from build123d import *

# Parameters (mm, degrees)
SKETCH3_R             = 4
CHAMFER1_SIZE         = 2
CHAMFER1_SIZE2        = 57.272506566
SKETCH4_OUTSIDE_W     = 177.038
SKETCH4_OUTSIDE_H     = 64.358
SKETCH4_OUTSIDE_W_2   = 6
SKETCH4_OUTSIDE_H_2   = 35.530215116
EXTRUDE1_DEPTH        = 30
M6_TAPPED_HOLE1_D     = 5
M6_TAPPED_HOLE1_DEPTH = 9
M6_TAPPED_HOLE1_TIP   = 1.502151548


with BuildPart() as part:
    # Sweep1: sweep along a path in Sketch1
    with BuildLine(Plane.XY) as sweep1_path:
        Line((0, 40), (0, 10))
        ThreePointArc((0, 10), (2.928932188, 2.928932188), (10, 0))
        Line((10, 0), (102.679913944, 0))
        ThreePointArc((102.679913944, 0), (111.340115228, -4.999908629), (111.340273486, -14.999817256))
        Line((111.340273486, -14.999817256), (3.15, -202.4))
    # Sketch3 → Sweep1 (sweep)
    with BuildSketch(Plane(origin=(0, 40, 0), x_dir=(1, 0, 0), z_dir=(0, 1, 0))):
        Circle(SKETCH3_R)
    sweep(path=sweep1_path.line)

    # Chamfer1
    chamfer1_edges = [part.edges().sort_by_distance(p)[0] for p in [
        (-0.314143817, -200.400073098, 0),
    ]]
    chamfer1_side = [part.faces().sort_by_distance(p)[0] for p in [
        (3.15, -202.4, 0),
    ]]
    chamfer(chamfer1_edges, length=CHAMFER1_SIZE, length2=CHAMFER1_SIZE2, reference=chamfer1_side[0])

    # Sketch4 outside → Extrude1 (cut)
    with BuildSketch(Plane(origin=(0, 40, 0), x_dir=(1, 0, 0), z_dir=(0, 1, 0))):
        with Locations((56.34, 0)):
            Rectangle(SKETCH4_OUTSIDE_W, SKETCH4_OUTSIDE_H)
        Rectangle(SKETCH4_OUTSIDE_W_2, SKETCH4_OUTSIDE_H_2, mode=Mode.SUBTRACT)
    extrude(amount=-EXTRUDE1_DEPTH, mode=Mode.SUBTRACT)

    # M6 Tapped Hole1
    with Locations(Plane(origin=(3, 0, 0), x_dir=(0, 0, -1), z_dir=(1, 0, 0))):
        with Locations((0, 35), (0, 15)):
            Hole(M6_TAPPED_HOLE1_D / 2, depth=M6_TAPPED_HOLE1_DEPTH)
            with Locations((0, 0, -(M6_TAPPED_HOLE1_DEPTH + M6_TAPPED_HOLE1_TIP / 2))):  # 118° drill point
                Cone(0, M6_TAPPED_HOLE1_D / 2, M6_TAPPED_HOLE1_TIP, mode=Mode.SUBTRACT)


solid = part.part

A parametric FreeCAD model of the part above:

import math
import FreeCAD as App
import Part
import Sketcher
from FreeCAD import Vector
Q = App.Units.Quantity


def edges_at(feature, points):
    """Names of the edges that pass closest to the given points."""
    edges = feature.Shape.Edges
    near = lambda p: min(range(len(edges)), key=lambda i: edges[i].distToShape(Part.Vertex(*p))[0])
    return sorted({f"Edge{near(p) + 1}" for p in points})


def add_polygon(sketch, points):
    """Adds a closed chain of lines whose ends are joined by coincident constraints."""
    first, n = sketch.GeometryCount, len(points)
    for a, b in zip(points, points[1:] + points[:1]):
        sketch.addGeometry(Part.LineSegment(App.Vector(*a, 0), App.Vector(*b, 0)), False)
    for i in range(n):
        sketch.addConstraint(Sketcher.Constraint("Coincident", first + i, 2, first + (i + 1) % n, 1))

doc = App.newDocument("Part")
body = doc.addObject("PartDesign::Body", "Body")

# Sketch on XZ plane
sketch1 = body.newObject("Sketcher::SketchObject", "Sketch")
sketch1.AttachmentSupport = (doc.getObject("XZ_Plane"), [""])
sketch1.MapMode = "FlatFace"
sketch1.AttachmentOffset = App.Placement(Vector(0, 0, -40), App.Rotation())
sketch1.addGeometry(Part.Circle(Vector(0, 0, 0), Vector(0, 0, 1), 4), False)
sketch1.addConstraint([
    Sketcher.Constraint("Coincident", 0, 3, -1, 1),
    Sketcher.Constraint("Diameter", 0, Q("8 mm")),
])

# Sketch on XY plane
sketch2 = body.newObject("Sketcher::SketchObject", "Sketch001")
sketch2.AttachmentSupport = (doc.getObject("XY_Plane"), [""])
sketch2.MapMode = "FlatFace"
sketch2.addGeometry([
    Part.LineSegment(Vector(0, 40, 0), Vector(0, 10, 0)),  # 0
    Part.ArcOfCircle(Part.Circle(Vector(10, 10, 0), Vector(0, 0, 1), 10), math.radians(180), math.radians(270)),  # 1
    Part.LineSegment(Vector(10, 0, 0), Vector(103, 0, 0)),  # 2
    Part.ArcOfCircle(Part.Circle(Vector(103, -10, 0), Vector(0, 0, 1), 10), math.radians(-30), math.radians(90)),  # 3
    Part.LineSegment(Vector(111, -15, 0), Vector(3, -202, 0)),  # 4
], False)
sketch2.addConstraint([
    Sketcher.Constraint("Tangent", 0, 2, 1, 1),
    Sketcher.Constraint("Tangent", 1, 2, 2, 1),
    Sketcher.Constraint("Tangent", 2, 2, 3, 2),
    Sketcher.Constraint("Tangent", 3, 1, 4, 1),
    Sketcher.Constraint("Vertical", 0),
    Sketcher.Constraint("Horizontal", 2),
    Sketcher.Constraint("Equal", 1, 3),
    Sketcher.Constraint("PointOnObject", 0, 1, -2),
    Sketcher.Constraint("PointOnObject", 1, 2, -1),
    Sketcher.Constraint("Radius", 1, Q("10 mm")),
    Sketcher.Constraint("DistanceY", 0, 2, 0, 1, Q("30 mm")),
    Sketcher.Constraint("DistanceY", 4, 2, -1, 1, Q("202.4 mm")),
    Sketcher.Constraint("DistanceX", -1, 1, 4, 2, Q("3.15 mm")),
    Sketcher.Constraint("DistanceX", 2, 1, 2, 2, Q("92.679914 mm")),
])
doc.recompute()

additivepipe = body.newObject("PartDesign::AdditivePipe", "AdditivePipe")
additivepipe.Profile = sketch1
additivepipe.Spine = (sketch2, ["Edge1", "Edge2", "Edge3", "Edge4", "Edge5"])
doc.recompute()

chamfer = body.newObject("PartDesign::Chamfer", "Chamfer")
chamfer.Base = (additivepipe, edges_at(additivepipe, [(-0.314, -200.4, 0)]))
chamfer.ChamferType = "Two distances"
chamfer.Size = 2
chamfer.Size2 = 57.272507
chamfer.FlipDirection = True

# Sketch on XZ plane
sketch3 = body.newObject("Sketcher::SketchObject", "Sketch002")
sketch3.AttachmentSupport = (doc.getObject("XZ_Plane"), [""])
sketch3.MapMode = "FlatFace"
sketch3.AttachmentOffset = App.Placement(Vector(0, 0, -40), App.Rotation())
add_polygon(sketch3, [(-32, -32), (-32, 32), (145, 32), (145, -32)])  # lines 0-3
add_polygon(sketch3, [(3, 18), (-3, 18), (-3, -18), (3, -18)])  # lines 4-7
sketch3.addConstraint([
    Sketcher.Constraint("Vertical", 0),
    Sketcher.Constraint("Horizontal", 1),
    Sketcher.Constraint("Vertical", 2),
    Sketcher.Constraint("Horizontal", 3),
    Sketcher.Constraint("Horizontal", 4),
    Sketcher.Constraint("Vertical", 5),
    Sketcher.Constraint("Horizontal", 6),
    Sketcher.Constraint("Vertical", 7),
    Sketcher.Constraint("Symmetric", 4, 2, 6, 2, -1, 1),
    Sketcher.Constraint("DistanceX", 4, 2, 4, 1, Q("6 mm")),
    Sketcher.Constraint("DistanceX", 1, 1, 1, 2, Q("177.038 mm")),
    Sketcher.Constraint("DistanceY", 0, 1, 0, 2, Q("64.358 mm")),
    Sketcher.Constraint("DistanceX", 0, 2, -1, 1, Q("32.179 mm")),
    Sketcher.Constraint("DistanceY", -1, 1, 0, 2, Q("32.179 mm")),
    Sketcher.Constraint("DistanceY", 5, 2, 5, 1, Q("35.530215 mm")),
])
pocket1 = body.newObject("PartDesign::Pocket", "Pocket")
pocket1.Profile = sketch3
pocket1.Length = 30
pocket1.Reversed = True

# Sketch on YZ plane
sketch4 = body.newObject("Sketcher::SketchObject", "Sketch003")
sketch4.AttachmentSupport = (doc.getObject("YZ_Plane"), [""])
sketch4.MapMode = "FlatFace"
sketch4.AttachmentOffset = App.Placement(Vector(0, 0, 3), App.Rotation())
sketch4.addGeometry([
    Part.Circle(Vector(35, 0, 0), Vector(0, 0, 1), 2.5),
    Part.Circle(Vector(15, 0, 0), Vector(0, 0, 1), 2.5),
], False)
sketch4.addConstraint([
    Sketcher.Constraint("Equal", 0, 1),
    Sketcher.Constraint("PointOnObject", 0, 3, -1),
    Sketcher.Constraint("PointOnObject", 1, 3, -1),
    Sketcher.Constraint("Diameter", 0, Q("5 mm")),
    Sketcher.Constraint("DistanceX", -1, 1, 0, 3, Q("35 mm")),
    Sketcher.Constraint("DistanceX", -1, 1, 1, 3, Q("15 mm")),
])
doc.recompute()
hole = body.newObject("PartDesign::Hole", "Hole")
hole.Profile = sketch4
hole.ThreadType = "None"
hole.Diameter = 5
hole.DepthType = "Dimension"
hole.Depth = 9
hole.DrillPoint = "Angled"
hole.DrillPointAngle = 118

doc.recompute()
